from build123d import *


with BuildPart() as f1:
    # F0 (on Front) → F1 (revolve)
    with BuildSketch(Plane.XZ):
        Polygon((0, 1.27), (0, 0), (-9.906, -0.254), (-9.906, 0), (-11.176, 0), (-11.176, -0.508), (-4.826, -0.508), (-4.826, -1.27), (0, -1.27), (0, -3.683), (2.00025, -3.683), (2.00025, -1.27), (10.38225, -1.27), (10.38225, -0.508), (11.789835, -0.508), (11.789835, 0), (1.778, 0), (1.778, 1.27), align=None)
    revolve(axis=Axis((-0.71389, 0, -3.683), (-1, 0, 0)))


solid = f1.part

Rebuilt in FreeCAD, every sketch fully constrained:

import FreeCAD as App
import Part
import Sketcher

V = App.Vector
Q = App.Units.Quantity


def add_polygon(sketch, points):
    """Adds a closed chain of lines whose ends are joined by coincident constraints."""
    first, n = sketch.GeometryCount, len(points)
    for a, b in zip(points, points[1:] + points[:1]):
        sketch.addGeometry(Part.LineSegment(App.Vector(*a, 0), App.Vector(*b, 0)), False)
    for i in range(n):
        sketch.addConstraint(Sketcher.Constraint("Coincident", first + i, 2, first + (i + 1) % n, 1))

doc = App.newDocument("Part")
params = doc.addObject("Spreadsheet::Sheet", "Params")
for row, (alias, value) in enumerate([
    ("sketch1_width", "0.05 in"),
    ("sketch1_width2", "0.25 in"),
    ("sketch1_width3", "0.19 in"),
    ("sketch1_width4", "0.33 in"),
    ("sketch1_width5", "0.07 in"),
    ("revolution_angle", "360 deg"),
], start=1):
    params.set(f"A{row}", alias)
    params.set(f"B{row}", "=" + value)
    params.setAlias(f"B{row}", alias)

body = doc.addObject("PartDesign::Body", "Body")

sketch1 = body.newObject("Sketcher::SketchObject", "Sketch")
sketch1.AttachmentSupport = (doc.getObject("XZ_Plane"), [""])
sketch1.MapMode = "FlatFace"
add_polygon(sketch1, [(0, 1.27), (0, 0), (-9.91, -0.25), (-9.91, 0), (-11.18, 0), (-11.18, -0.51), (-4.83, -0.51), (-4.83, -1.27), (0, -1.27), (0, -3.68), (2, -3.68), (2, -1.27), (10.38, -1.27), (10.38, -0.51), (11.79, -0.51), (11.79, 0), (1.78, 0), (1.78, 1.27)])
sketch1.addGeometry(Part.LineSegment(V(11.79, -3.68, 0), V(-11.18, -3.68, 0)), True)
sketch1.addConstraint(Sketcher.Constraint("Vertical", 0))
sketch1.addConstraint(Sketcher.Constraint("Vertical", 2))
sketch1.addConstraint(Sketcher.Constraint("Horizontal", 3))
sketch1.addConstraint(Sketcher.Constraint("Vertical", 4))
sketch1.addConstraint(Sketcher.Constraint("Horizontal", 5))
sketch1.addConstraint(Sketcher.Constraint("Vertical", 6))
sketch1.addConstraint(Sketcher.Constraint("Horizontal", 7))
sketch1.addConstraint(Sketcher.Constraint("Vertical", 8))
sketch1.addConstraint(Sketcher.Constraint("Horizontal", 9))
sketch1.addConstraint(Sketcher.Constraint("Vertical", 10))
sketch1.addConstraint(Sketcher.Constraint("Horizontal", 11))
sketch1.addConstraint(Sketcher.Constraint("Vertical", 12))
sketch1.addConstraint(Sketcher.Constraint("Horizontal", 13))
sketch1.addConstraint(Sketcher.Constraint("Vertical", 14))
sketch1.addConstraint(Sketcher.Constraint("Horizontal", 15))
sketch1.addConstraint(Sketcher.Constraint("Vertical", 16))
sketch1.addConstraint(Sketcher.Constraint("Horizontal", 17))
sketch1.addConstraint(Sketcher.Constraint("Horizontal", 18))
sketch1.addConstraint(Sketcher.Constraint("Coincident", 0, 2, -1, 1))
sketch1.addConstraint(Sketcher.Constraint("Symmetric", 7, 2, 17, 2, -1, 1))
sketch1.addConstraint(Sketcher.Constraint("PointOnObject", 2, 2, -1))
sketch1.addConstraint(Sketcher.Constraint("PointOnObject", 14, 2, -1))
sketch1.addConstraint(Sketcher.Constraint("Horizontal", 7, 2, 10, 2))
sketch1.addConstraint(Sketcher.Constraint("Horizontal", 5, 2, 12, 2))
sketch1.addConstraint(Sketcher.Constraint("Horizontal", 9, 2, 18, 1))
sketch1.addConstraint(Sketcher.Constraint("Vertical", 14, 2, 18, 1))
sketch1.addConstraint(Sketcher.Constraint("Vertical", 4, 2, 18, 2))
sketch1.addConstraint(Sketcher.Constraint("Equal", 3, 0))
sketch1.addConstraint(Sketcher.Constraint("DistanceX", 3, 2, 3, 1, Q("0.05 in")))
sketch1.addConstraint(Sketcher.Constraint("DistanceX", 5, 1, 5, 2, Q("0.25 in")))
sketch1.addConstraint(Sketcher.Constraint("DistanceX", 7, 1, 7, 2, Q("0.19 in")))
sketch1.addConstraint(Sketcher.Constraint("DistanceX", 11, 1, 11, 2, Q("0.33 in")))
sketch1.addConstraint(Sketcher.Constraint("DistanceX", 17, 2, 17, 1, Q("0.07 in")))
sketch1.addConstraint(Sketcher.Constraint("DistanceY", 2, 1, 2, 2, Q("0.01 in")))
sketch1.addConstraint(Sketcher.Constraint("DistanceY", 4, 2, 4, 1, Q("0.02 in")))
sketch1.addConstraint(Sketcher.Constraint("DistanceY", 8, 2, 8, 1, Q("0.095 in")))
sketch1.addConstraint(Sketcher.Constraint("DistanceX", 9, 1, 9, 2, Q("2.00025 mm")))
sketch1.addConstraint(Sketcher.Constraint("DistanceX", 13, 1, 13, 2, Q("1.407585 mm")))
sketch1.setExpression("Constraints[46]", "Params.sketch1_width")
sketch1.setExpression("Constraints[47]", "Params.sketch1_width2")
sketch1.setExpression("Constraints[48]", "Params.sketch1_width3")
sketch1.setExpression("Constraints[49]", "Params.sketch1_width4")
sketch1.setExpression("Constraints[50]", "Params.sketch1_width5")
revolution = body.newObject("PartDesign::Revolution", "Revolution")
revolution.Profile = sketch1
revolution.ReferenceAxis = (sketch1, ["Axis0"])
revolution.setExpression("Angle", "Params.revolution_angle")

doc.recompute()
